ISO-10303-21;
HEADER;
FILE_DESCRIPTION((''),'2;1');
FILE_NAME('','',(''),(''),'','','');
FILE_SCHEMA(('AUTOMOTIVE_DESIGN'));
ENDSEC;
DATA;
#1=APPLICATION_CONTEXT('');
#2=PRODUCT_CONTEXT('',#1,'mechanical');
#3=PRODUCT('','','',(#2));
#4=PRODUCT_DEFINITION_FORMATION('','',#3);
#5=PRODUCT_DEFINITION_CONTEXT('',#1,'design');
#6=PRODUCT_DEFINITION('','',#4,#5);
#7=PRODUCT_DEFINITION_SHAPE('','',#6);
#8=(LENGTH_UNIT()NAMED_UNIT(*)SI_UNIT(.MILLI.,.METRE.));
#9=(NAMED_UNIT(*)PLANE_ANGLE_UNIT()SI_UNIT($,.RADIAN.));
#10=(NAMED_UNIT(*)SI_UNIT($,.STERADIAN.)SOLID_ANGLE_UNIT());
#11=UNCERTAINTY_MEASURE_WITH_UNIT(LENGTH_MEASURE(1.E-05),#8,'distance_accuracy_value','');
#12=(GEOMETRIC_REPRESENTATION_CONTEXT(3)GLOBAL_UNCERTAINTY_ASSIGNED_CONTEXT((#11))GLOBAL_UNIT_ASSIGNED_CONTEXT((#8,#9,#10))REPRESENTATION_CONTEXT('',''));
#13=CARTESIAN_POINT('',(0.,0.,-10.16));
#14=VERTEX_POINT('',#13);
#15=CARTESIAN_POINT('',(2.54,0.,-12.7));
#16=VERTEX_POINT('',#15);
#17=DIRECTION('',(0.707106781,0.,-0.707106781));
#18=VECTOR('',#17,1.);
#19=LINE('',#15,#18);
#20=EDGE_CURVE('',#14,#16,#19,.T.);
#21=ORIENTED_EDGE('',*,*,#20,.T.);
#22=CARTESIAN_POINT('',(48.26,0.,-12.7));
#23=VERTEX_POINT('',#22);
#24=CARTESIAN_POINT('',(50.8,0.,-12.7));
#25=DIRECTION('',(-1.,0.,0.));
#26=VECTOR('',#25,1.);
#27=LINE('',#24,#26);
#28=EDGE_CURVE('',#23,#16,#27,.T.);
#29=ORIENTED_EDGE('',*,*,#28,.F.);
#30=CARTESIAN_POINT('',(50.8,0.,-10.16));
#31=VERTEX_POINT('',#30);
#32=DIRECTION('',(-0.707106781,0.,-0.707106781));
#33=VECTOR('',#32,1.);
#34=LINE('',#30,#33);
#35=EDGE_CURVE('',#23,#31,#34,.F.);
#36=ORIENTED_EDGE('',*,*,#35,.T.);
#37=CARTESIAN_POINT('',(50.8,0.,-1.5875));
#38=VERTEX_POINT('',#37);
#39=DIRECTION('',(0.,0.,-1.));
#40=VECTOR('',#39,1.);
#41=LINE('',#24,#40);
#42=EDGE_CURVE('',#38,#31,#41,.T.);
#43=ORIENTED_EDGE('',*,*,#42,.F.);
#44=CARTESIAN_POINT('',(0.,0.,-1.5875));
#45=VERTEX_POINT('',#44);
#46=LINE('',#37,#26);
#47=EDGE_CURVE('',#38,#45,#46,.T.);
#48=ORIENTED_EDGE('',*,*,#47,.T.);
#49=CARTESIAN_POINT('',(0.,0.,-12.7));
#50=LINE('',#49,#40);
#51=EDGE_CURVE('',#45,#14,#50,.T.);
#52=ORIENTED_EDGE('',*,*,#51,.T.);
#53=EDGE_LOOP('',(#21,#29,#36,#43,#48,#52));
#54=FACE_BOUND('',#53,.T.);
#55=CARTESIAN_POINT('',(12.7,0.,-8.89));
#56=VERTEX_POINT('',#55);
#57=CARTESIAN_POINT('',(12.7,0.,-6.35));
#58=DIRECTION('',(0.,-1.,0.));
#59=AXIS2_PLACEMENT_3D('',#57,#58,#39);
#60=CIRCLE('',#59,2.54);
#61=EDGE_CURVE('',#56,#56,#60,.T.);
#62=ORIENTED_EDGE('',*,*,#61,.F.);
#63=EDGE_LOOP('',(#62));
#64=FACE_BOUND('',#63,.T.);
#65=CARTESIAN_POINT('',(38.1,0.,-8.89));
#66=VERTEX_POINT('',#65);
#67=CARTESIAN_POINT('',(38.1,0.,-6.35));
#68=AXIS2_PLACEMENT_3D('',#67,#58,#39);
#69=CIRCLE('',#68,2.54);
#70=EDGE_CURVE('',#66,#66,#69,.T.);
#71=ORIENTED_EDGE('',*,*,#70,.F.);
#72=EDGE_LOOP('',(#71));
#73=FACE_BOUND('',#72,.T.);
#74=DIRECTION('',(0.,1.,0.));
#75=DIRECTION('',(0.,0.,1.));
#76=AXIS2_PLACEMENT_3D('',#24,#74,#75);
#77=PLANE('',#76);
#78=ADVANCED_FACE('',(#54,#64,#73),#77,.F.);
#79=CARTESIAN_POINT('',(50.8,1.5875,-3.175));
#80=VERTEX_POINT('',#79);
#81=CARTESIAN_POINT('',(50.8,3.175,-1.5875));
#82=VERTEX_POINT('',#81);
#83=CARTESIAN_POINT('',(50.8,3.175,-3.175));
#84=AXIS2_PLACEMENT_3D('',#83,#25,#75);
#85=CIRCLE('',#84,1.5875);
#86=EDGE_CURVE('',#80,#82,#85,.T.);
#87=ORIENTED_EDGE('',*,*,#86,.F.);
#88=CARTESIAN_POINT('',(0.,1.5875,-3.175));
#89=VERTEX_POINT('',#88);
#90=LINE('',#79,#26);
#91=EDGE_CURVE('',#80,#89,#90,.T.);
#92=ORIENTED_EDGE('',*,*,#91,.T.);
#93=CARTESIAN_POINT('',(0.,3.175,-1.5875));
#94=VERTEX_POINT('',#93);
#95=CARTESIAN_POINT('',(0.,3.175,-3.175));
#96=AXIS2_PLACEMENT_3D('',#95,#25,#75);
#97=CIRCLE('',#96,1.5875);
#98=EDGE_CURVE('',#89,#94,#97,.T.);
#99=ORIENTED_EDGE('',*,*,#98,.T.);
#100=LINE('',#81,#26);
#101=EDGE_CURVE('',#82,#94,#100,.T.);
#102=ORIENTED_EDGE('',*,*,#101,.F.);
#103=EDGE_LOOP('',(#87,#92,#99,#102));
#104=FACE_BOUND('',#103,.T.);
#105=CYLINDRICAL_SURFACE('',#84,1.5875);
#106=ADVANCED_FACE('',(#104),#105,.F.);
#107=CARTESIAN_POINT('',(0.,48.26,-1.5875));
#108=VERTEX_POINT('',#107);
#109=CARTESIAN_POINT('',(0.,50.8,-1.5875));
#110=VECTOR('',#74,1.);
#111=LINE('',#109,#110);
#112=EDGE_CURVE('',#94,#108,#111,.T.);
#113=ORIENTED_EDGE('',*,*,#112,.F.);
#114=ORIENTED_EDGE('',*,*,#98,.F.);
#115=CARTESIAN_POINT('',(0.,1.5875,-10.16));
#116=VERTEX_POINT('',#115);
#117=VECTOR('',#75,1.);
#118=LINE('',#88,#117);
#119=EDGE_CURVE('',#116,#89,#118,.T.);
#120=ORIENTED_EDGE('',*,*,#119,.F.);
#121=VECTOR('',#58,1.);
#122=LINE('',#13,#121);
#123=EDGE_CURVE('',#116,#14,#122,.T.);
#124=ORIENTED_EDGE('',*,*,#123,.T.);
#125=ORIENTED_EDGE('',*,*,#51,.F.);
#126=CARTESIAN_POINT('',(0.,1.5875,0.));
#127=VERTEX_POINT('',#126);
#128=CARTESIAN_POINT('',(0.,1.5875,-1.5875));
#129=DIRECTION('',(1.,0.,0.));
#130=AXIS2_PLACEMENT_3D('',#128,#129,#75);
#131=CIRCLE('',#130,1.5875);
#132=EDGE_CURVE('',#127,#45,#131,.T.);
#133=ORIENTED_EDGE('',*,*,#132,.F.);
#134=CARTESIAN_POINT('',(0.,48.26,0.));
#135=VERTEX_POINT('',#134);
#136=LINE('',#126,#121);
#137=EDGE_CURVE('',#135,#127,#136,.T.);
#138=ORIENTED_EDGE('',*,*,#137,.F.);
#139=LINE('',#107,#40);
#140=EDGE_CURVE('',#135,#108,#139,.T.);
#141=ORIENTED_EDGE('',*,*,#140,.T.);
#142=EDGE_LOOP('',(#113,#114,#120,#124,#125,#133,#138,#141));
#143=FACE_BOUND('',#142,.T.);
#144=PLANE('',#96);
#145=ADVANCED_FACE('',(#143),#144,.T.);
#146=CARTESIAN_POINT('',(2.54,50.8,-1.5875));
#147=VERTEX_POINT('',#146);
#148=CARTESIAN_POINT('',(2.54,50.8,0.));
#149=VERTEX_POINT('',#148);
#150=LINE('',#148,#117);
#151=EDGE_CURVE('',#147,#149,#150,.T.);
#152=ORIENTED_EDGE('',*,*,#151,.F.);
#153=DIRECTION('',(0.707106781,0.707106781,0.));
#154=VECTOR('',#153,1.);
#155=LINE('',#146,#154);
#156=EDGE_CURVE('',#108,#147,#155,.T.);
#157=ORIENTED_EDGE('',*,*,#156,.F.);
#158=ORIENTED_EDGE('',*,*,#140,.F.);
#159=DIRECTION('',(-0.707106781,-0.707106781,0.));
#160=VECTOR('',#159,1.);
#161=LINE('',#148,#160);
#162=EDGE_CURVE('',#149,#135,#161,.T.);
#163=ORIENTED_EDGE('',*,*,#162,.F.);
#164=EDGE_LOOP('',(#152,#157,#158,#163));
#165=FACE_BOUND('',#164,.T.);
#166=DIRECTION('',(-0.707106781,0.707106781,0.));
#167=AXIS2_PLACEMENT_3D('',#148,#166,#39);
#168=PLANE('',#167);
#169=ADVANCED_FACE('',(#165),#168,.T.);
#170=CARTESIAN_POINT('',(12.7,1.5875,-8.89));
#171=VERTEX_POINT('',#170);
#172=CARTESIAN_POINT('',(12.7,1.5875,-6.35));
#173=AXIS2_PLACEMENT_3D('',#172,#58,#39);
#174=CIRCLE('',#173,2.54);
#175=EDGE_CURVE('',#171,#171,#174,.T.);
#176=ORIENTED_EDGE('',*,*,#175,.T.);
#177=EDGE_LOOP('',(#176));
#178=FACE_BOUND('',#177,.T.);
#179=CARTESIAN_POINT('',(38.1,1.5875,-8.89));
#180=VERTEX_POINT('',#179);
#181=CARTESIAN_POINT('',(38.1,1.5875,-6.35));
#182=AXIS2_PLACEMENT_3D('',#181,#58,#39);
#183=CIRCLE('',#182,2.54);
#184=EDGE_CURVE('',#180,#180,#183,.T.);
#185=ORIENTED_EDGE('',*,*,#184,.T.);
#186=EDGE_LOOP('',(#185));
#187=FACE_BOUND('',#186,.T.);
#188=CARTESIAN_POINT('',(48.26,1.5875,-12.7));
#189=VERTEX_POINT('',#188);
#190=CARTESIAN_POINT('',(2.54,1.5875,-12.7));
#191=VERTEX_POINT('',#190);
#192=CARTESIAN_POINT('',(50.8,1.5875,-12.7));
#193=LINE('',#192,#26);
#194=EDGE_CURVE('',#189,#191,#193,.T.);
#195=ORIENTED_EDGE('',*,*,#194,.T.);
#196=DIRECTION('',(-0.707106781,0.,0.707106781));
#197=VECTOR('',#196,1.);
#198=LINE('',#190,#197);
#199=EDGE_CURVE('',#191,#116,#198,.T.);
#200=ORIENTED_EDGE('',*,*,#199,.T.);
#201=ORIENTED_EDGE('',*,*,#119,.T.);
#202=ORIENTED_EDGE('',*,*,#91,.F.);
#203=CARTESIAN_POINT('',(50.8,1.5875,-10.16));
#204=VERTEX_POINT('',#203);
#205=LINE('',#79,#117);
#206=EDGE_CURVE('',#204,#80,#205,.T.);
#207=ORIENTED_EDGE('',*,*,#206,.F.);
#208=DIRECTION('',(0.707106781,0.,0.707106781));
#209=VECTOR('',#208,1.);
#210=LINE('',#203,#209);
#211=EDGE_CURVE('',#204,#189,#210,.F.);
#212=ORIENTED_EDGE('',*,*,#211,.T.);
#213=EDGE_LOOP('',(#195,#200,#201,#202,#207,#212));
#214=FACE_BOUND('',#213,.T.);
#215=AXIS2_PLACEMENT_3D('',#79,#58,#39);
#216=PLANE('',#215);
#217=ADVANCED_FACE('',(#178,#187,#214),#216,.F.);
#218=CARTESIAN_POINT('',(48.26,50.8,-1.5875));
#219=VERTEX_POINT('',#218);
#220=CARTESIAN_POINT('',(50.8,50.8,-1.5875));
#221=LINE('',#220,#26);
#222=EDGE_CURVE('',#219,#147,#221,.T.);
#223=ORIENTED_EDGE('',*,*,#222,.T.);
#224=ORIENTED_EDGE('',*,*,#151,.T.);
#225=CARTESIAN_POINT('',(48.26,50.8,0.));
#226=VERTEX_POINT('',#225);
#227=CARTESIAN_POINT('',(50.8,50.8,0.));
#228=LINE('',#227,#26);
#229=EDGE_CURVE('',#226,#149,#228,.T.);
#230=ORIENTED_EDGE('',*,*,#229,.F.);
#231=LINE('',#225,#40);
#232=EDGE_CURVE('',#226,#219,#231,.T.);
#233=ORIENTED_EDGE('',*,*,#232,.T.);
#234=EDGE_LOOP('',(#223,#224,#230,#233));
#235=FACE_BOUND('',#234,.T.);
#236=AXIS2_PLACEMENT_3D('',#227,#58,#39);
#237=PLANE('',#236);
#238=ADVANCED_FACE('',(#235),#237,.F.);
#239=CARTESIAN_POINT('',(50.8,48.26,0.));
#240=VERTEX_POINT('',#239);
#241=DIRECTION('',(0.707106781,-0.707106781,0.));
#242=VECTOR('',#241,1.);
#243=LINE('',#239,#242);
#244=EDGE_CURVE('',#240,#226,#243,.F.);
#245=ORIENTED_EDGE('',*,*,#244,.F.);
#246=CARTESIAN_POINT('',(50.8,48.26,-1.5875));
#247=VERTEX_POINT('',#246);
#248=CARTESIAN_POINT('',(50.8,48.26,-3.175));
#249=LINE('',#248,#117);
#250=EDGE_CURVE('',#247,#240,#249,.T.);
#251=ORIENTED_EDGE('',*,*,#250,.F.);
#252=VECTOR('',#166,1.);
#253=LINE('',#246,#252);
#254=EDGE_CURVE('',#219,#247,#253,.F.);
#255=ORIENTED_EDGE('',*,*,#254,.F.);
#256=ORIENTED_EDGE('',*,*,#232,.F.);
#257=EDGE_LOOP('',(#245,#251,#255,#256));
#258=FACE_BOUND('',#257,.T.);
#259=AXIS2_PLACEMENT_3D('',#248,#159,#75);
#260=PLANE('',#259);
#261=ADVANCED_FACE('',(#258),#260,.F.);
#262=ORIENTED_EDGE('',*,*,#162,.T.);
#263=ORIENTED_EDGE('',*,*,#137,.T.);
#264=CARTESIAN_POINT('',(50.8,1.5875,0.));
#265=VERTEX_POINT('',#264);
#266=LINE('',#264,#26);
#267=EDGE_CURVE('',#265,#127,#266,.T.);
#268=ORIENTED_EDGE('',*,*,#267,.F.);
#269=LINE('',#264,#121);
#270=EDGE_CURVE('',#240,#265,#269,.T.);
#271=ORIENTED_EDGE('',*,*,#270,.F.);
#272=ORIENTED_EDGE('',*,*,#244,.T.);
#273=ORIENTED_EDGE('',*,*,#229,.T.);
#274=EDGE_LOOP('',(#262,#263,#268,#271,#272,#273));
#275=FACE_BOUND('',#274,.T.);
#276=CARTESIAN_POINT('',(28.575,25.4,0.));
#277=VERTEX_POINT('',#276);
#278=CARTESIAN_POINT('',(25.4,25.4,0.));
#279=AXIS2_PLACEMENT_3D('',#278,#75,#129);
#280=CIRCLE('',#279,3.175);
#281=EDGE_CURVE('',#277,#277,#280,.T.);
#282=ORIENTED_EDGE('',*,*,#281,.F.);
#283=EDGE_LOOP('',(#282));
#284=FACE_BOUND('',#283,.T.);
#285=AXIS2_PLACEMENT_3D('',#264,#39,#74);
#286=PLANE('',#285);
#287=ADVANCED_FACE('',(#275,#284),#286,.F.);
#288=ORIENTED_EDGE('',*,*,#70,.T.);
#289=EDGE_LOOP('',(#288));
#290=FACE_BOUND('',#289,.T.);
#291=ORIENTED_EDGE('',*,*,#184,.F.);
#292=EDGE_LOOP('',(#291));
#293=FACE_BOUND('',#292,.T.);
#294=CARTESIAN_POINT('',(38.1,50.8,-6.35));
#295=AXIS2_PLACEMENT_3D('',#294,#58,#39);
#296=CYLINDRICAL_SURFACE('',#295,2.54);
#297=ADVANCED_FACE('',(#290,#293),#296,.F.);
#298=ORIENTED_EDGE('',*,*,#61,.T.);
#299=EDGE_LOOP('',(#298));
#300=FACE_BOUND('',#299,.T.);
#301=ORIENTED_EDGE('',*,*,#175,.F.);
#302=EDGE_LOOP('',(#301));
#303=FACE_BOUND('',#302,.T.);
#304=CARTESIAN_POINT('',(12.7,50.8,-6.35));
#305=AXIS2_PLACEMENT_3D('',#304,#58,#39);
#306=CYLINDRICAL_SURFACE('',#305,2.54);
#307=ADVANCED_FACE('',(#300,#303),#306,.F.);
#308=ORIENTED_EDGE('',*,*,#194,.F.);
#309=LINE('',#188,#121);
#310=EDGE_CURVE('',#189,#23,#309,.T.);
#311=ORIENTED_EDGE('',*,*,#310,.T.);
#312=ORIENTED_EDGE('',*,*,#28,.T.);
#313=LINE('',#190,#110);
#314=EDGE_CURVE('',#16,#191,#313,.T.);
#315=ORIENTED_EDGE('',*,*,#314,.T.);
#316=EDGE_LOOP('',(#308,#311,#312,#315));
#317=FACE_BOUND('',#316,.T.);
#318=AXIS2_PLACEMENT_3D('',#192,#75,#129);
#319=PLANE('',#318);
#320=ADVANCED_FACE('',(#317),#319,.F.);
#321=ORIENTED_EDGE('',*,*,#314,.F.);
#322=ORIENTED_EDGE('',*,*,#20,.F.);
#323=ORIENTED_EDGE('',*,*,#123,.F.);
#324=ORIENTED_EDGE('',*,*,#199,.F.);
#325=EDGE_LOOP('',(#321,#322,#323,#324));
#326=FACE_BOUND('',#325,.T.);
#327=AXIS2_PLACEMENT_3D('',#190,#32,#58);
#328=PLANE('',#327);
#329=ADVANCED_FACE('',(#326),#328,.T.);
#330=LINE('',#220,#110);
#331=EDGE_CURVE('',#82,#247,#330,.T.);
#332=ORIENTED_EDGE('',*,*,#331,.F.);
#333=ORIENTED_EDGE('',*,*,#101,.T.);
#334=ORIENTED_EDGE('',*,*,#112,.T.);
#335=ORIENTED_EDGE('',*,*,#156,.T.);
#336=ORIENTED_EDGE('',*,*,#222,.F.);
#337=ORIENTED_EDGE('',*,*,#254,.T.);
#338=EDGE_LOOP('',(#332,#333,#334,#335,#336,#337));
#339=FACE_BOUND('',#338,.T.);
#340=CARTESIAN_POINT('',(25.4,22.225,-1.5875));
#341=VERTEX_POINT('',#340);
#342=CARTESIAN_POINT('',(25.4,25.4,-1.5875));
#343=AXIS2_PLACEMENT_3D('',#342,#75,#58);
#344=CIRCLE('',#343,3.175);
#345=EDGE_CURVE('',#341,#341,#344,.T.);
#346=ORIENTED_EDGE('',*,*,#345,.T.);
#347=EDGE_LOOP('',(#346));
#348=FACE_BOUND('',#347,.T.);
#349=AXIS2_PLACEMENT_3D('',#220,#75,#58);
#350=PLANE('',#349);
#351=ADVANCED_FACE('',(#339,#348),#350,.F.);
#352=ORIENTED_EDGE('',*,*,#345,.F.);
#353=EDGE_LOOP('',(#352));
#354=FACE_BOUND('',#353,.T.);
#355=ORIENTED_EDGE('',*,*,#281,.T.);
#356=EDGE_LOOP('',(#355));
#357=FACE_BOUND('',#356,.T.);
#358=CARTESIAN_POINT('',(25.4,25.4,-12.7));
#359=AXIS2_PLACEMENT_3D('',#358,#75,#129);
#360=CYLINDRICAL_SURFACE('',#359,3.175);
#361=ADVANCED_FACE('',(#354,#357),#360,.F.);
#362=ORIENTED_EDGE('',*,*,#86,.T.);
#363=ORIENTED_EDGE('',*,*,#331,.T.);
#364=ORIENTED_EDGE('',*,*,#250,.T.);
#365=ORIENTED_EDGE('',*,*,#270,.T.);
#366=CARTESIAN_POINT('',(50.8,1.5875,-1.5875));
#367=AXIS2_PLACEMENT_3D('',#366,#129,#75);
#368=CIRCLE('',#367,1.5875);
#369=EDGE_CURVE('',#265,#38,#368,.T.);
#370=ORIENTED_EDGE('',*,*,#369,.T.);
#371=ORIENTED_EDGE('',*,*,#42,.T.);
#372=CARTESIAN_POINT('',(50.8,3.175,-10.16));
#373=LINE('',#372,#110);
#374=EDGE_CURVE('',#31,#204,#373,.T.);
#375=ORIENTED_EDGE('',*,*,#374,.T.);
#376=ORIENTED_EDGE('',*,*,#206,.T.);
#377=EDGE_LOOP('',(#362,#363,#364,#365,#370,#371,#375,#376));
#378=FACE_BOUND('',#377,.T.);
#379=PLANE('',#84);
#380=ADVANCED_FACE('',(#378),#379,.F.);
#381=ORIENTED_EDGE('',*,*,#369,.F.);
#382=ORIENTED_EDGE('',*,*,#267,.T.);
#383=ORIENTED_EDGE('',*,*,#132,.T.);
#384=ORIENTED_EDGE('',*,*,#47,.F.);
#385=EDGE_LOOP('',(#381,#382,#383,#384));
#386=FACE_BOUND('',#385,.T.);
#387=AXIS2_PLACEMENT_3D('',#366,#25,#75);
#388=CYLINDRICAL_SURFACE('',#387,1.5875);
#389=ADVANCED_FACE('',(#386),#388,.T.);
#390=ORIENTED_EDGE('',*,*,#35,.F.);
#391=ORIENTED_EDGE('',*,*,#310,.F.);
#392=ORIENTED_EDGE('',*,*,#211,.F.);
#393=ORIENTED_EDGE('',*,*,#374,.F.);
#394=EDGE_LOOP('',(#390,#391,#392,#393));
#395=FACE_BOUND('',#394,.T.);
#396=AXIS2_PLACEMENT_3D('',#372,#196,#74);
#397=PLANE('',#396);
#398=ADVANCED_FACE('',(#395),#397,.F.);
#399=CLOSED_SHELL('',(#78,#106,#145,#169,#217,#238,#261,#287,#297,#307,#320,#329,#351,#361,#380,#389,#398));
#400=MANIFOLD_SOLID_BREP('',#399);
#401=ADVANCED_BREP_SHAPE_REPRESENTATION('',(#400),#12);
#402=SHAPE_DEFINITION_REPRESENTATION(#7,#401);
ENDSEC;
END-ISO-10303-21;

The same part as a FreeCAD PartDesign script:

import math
import FreeCAD as App
import Part
import Sketcher
from FreeCAD import Vector
Q = App.Units.Quantity


def edges_at(feature, points):
    """Names of the edges that pass closest to the given points."""
    edges = feature.Shape.Edges
    near = lambda p: min(range(len(edges)), key=lambda i: edges[i].distToShape(Part.Vertex(*p))[0])
    return sorted({f"Edge{near(p) + 1}" for p in points})

doc = App.newDocument("Part")
params = doc.addObject("Spreadsheet::Sheet", "Params")
for row, (alias, value) in enumerate([
    ("sketch1_radius", "0.0625 in"),
    ("pad1_length", "2 in"),
    ("sketch2_diameter", "0.2 in"),
    ("sketch3_diameter", "0.25 in"),
    ("chamfer_size", "0.1 in"),
], start=1):
    params.set(f"A{row}", alias)
    params.set(f"B{row}", "=" + value)
    params.setAlias(f"B{row}", alias)

body = doc.addObject("PartDesign::Body", "Body")

sketch1 = doc.addObject("Sketcher::SketchObject", "Sketch")
body.addObject(sketch1)
sketch1.AttachmentSupport = (doc.YZ_Plane, [""])
sketch1.MapMode = "FlatFace"
sketch1.addGeometry(Part.LineSegment(Vector(50.8, 0, 0), Vector(1.6, 0, 0)), False)
sketch1.addGeometry(Part.ArcOfCircle(Part.Circle(Vector(1.6, -1.6, 0), Vector(0, 0, 1), 1.6), math.radians(90), math.radians(180)), False)
sketch1.addGeometry(Part.LineSegment(Vector(0, -1.6, 0), Vector(0, -12.7, 0)), False)
sketch1.addGeometry(Part.LineSegment(Vector(0, -12.7, 0), Vector(1.6, -12.7, 0)), False)
sketch1.addGeometry(Part.LineSegment(Vector(1.6, -12.7, 0), Vector(1.6, -3.2, 0)), False)
sketch1.addGeometry(Part.ArcOfCircle(Part.Circle(Vector(3.2, -3.2, 0), Vector(0, 0, 1), 1.6), math.radians(90), math.radians(180)), False)
sketch1.addGeometry(Part.LineSegment(Vector(3.2, -1.6, 0), Vector(50.8, -1.6, 0)), False)
sketch1.addGeometry(Part.LineSegment(Vector(50.8, -1.6, 0), Vector(50.8, 0, 0)), False)
sketch1.addConstraint(Sketcher.Constraint("Tangent", 0, 2, 1, 1))
sketch1.addConstraint(Sketcher.Constraint("Tangent", 1, 2, 2, 1))
sketch1.addConstraint(Sketcher.Constraint("Coincident", 2, 2, 3, 1))
sketch1.addConstraint(Sketcher.Constraint("Coincident", 3, 2, 4, 1))
sketch1.addConstraint(Sketcher.Constraint("Tangent", 4, 2, 5, 2))
sketch1.addConstraint(Sketcher.Constraint("Tangent", 5, 1, 6, 1))
sketch1.addConstraint(Sketcher.Constraint("Coincident", 6, 2, 7, 1))
sketch1.addConstraint(Sketcher.Constraint("Coincident", 7, 2, 0, 1))
sketch1.addConstraint(Sketcher.Constraint("Horizontal", 0))
sketch1.addConstraint(Sketcher.Constraint("Vertical", 2))
sketch1.addConstraint(Sketcher.Constraint("Horizontal", 3))
sketch1.addConstraint(Sketcher.Constraint("Vertical", 4))
sketch1.addConstraint(Sketcher.Constraint("Horizontal", 6))
sketch1.addConstraint(Sketcher.Constraint("Vertical", 7))
sketch1.addConstraint(Sketcher.Constraint("Equal", 1, 5))
sketch1.addConstraint(Sketcher.Constraint("PointOnObject", 0, 2, -1))
sketch1.addConstraint(Sketcher.Constraint("PointOnObject", 1, 2, -2))
sketch1.addConstraint(Sketcher.Constraint("Horizontal", 1, 2, 5, 1))
sketch1.addConstraint(Sketcher.Constraint("Vertical", 0, 2, 3, 2))
sketch1.addConstraint(Sketcher.Constraint("DistanceX", -1, 1, 6, 2, Q("2 in")))
sketch1.addConstraint(Sketcher.Constraint("Radius", 1, Q("0.0625 in")))
sketch1.addConstraint(Sketcher.Constraint("DistanceY", 2, 2, -1, 1, Q("0.5 in")))
sketch1.setExpression("Constraints[20]", "Params.sketch1_radius")
pad1 = doc.addObject("PartDesign::Pad", "Pad")
body.addObject(pad1)
pad1.Profile = sketch1
pad1.setExpression("Length", "Params.pad1_length")

sketch2 = doc.addObject("Sketcher::SketchObject", "Sketch001")
body.addObject(sketch2)
sketch2.AttachmentSupport = (doc.XZ_Plane, [""])
sketch2.MapMode = "FlatFace"
sketch2.addGeometry(Part.Circle(Vector(38.1, -6.3, 0), Vector(0, 0, 1), 2.5), False)
sketch2.addGeometry(Part.Circle(Vector(12.7, -6.3, 0), Vector(0, 0, 1), 2.5), False)
sketch2.addConstraint(Sketcher.Constraint("Equal", 0, 1))
sketch2.addConstraint(Sketcher.Constraint("Horizontal", 0, 3, 1, 3))
sketch2.addConstraint(Sketcher.Constraint("Diameter", 0, Q("0.2 in")))
sketch2.addConstraint(Sketcher.Constraint("DistanceX", 1, 3, 0, 3, Q("1 in")))
sketch2.addConstraint(Sketcher.Constraint("DistanceX", -1, 1, 0, 3, Q("1.5 in")))
sketch2.addConstraint(Sketcher.Constraint("DistanceY", 0, 3, -1, 1, Q("0.25 in")))
sketch2.setExpression("Constraints[2]", "Params.sketch2_diameter")
pocket1 = doc.addObject("PartDesign::Pocket", "Pocket")
body.addObject(pocket1)
pocket1.Profile = sketch2
pocket1.Type = "ThroughAll"

sketch3 = doc.addObject("Sketcher::SketchObject", "Sketch002")
body.addObject(sketch3)
sketch3.AttachmentSupport = (doc.XY_Plane, [""])
sketch3.MapMode = "FlatFace"
sketch3.addGeometry(Part.Circle(Vector(25.4, 25.4, 0), Vector(0, 0, 1), 3.2), False)
sketch3.addConstraint(Sketcher.Constraint("Diameter", 0, Q("0.25 in")))
sketch3.addConstraint(Sketcher.Constraint("DistanceX", -1, 1, 0, 3, Q("1 in")))
sketch3.addConstraint(Sketcher.Constraint("DistanceY", -1, 1, 0, 3, Q("1 in")))
sketch3.setExpression("Constraints[0]", "Params.sketch3_diameter")
pocket2 = doc.addObject("PartDesign::Pocket", "Pocket001")
body.addObject(pocket2)
pocket2.Profile = sketch3
pocket2.Type = "ThroughAll"
doc.recompute()

chamfer = doc.addObject("PartDesign::Chamfer", "Chamfer")
body.addObject(chamfer)
chamfer.Base = (pocket2, edges_at(pocket2, [
    (0, 50.8, -0.794),
    (50.8, 0.794, -12.7),
    (50.8, 50.8, -0.794),
    (0, 0.794, -12.7),
]))
chamfer.setExpression("Size", "Params.chamfer_size")

doc.recompute()
